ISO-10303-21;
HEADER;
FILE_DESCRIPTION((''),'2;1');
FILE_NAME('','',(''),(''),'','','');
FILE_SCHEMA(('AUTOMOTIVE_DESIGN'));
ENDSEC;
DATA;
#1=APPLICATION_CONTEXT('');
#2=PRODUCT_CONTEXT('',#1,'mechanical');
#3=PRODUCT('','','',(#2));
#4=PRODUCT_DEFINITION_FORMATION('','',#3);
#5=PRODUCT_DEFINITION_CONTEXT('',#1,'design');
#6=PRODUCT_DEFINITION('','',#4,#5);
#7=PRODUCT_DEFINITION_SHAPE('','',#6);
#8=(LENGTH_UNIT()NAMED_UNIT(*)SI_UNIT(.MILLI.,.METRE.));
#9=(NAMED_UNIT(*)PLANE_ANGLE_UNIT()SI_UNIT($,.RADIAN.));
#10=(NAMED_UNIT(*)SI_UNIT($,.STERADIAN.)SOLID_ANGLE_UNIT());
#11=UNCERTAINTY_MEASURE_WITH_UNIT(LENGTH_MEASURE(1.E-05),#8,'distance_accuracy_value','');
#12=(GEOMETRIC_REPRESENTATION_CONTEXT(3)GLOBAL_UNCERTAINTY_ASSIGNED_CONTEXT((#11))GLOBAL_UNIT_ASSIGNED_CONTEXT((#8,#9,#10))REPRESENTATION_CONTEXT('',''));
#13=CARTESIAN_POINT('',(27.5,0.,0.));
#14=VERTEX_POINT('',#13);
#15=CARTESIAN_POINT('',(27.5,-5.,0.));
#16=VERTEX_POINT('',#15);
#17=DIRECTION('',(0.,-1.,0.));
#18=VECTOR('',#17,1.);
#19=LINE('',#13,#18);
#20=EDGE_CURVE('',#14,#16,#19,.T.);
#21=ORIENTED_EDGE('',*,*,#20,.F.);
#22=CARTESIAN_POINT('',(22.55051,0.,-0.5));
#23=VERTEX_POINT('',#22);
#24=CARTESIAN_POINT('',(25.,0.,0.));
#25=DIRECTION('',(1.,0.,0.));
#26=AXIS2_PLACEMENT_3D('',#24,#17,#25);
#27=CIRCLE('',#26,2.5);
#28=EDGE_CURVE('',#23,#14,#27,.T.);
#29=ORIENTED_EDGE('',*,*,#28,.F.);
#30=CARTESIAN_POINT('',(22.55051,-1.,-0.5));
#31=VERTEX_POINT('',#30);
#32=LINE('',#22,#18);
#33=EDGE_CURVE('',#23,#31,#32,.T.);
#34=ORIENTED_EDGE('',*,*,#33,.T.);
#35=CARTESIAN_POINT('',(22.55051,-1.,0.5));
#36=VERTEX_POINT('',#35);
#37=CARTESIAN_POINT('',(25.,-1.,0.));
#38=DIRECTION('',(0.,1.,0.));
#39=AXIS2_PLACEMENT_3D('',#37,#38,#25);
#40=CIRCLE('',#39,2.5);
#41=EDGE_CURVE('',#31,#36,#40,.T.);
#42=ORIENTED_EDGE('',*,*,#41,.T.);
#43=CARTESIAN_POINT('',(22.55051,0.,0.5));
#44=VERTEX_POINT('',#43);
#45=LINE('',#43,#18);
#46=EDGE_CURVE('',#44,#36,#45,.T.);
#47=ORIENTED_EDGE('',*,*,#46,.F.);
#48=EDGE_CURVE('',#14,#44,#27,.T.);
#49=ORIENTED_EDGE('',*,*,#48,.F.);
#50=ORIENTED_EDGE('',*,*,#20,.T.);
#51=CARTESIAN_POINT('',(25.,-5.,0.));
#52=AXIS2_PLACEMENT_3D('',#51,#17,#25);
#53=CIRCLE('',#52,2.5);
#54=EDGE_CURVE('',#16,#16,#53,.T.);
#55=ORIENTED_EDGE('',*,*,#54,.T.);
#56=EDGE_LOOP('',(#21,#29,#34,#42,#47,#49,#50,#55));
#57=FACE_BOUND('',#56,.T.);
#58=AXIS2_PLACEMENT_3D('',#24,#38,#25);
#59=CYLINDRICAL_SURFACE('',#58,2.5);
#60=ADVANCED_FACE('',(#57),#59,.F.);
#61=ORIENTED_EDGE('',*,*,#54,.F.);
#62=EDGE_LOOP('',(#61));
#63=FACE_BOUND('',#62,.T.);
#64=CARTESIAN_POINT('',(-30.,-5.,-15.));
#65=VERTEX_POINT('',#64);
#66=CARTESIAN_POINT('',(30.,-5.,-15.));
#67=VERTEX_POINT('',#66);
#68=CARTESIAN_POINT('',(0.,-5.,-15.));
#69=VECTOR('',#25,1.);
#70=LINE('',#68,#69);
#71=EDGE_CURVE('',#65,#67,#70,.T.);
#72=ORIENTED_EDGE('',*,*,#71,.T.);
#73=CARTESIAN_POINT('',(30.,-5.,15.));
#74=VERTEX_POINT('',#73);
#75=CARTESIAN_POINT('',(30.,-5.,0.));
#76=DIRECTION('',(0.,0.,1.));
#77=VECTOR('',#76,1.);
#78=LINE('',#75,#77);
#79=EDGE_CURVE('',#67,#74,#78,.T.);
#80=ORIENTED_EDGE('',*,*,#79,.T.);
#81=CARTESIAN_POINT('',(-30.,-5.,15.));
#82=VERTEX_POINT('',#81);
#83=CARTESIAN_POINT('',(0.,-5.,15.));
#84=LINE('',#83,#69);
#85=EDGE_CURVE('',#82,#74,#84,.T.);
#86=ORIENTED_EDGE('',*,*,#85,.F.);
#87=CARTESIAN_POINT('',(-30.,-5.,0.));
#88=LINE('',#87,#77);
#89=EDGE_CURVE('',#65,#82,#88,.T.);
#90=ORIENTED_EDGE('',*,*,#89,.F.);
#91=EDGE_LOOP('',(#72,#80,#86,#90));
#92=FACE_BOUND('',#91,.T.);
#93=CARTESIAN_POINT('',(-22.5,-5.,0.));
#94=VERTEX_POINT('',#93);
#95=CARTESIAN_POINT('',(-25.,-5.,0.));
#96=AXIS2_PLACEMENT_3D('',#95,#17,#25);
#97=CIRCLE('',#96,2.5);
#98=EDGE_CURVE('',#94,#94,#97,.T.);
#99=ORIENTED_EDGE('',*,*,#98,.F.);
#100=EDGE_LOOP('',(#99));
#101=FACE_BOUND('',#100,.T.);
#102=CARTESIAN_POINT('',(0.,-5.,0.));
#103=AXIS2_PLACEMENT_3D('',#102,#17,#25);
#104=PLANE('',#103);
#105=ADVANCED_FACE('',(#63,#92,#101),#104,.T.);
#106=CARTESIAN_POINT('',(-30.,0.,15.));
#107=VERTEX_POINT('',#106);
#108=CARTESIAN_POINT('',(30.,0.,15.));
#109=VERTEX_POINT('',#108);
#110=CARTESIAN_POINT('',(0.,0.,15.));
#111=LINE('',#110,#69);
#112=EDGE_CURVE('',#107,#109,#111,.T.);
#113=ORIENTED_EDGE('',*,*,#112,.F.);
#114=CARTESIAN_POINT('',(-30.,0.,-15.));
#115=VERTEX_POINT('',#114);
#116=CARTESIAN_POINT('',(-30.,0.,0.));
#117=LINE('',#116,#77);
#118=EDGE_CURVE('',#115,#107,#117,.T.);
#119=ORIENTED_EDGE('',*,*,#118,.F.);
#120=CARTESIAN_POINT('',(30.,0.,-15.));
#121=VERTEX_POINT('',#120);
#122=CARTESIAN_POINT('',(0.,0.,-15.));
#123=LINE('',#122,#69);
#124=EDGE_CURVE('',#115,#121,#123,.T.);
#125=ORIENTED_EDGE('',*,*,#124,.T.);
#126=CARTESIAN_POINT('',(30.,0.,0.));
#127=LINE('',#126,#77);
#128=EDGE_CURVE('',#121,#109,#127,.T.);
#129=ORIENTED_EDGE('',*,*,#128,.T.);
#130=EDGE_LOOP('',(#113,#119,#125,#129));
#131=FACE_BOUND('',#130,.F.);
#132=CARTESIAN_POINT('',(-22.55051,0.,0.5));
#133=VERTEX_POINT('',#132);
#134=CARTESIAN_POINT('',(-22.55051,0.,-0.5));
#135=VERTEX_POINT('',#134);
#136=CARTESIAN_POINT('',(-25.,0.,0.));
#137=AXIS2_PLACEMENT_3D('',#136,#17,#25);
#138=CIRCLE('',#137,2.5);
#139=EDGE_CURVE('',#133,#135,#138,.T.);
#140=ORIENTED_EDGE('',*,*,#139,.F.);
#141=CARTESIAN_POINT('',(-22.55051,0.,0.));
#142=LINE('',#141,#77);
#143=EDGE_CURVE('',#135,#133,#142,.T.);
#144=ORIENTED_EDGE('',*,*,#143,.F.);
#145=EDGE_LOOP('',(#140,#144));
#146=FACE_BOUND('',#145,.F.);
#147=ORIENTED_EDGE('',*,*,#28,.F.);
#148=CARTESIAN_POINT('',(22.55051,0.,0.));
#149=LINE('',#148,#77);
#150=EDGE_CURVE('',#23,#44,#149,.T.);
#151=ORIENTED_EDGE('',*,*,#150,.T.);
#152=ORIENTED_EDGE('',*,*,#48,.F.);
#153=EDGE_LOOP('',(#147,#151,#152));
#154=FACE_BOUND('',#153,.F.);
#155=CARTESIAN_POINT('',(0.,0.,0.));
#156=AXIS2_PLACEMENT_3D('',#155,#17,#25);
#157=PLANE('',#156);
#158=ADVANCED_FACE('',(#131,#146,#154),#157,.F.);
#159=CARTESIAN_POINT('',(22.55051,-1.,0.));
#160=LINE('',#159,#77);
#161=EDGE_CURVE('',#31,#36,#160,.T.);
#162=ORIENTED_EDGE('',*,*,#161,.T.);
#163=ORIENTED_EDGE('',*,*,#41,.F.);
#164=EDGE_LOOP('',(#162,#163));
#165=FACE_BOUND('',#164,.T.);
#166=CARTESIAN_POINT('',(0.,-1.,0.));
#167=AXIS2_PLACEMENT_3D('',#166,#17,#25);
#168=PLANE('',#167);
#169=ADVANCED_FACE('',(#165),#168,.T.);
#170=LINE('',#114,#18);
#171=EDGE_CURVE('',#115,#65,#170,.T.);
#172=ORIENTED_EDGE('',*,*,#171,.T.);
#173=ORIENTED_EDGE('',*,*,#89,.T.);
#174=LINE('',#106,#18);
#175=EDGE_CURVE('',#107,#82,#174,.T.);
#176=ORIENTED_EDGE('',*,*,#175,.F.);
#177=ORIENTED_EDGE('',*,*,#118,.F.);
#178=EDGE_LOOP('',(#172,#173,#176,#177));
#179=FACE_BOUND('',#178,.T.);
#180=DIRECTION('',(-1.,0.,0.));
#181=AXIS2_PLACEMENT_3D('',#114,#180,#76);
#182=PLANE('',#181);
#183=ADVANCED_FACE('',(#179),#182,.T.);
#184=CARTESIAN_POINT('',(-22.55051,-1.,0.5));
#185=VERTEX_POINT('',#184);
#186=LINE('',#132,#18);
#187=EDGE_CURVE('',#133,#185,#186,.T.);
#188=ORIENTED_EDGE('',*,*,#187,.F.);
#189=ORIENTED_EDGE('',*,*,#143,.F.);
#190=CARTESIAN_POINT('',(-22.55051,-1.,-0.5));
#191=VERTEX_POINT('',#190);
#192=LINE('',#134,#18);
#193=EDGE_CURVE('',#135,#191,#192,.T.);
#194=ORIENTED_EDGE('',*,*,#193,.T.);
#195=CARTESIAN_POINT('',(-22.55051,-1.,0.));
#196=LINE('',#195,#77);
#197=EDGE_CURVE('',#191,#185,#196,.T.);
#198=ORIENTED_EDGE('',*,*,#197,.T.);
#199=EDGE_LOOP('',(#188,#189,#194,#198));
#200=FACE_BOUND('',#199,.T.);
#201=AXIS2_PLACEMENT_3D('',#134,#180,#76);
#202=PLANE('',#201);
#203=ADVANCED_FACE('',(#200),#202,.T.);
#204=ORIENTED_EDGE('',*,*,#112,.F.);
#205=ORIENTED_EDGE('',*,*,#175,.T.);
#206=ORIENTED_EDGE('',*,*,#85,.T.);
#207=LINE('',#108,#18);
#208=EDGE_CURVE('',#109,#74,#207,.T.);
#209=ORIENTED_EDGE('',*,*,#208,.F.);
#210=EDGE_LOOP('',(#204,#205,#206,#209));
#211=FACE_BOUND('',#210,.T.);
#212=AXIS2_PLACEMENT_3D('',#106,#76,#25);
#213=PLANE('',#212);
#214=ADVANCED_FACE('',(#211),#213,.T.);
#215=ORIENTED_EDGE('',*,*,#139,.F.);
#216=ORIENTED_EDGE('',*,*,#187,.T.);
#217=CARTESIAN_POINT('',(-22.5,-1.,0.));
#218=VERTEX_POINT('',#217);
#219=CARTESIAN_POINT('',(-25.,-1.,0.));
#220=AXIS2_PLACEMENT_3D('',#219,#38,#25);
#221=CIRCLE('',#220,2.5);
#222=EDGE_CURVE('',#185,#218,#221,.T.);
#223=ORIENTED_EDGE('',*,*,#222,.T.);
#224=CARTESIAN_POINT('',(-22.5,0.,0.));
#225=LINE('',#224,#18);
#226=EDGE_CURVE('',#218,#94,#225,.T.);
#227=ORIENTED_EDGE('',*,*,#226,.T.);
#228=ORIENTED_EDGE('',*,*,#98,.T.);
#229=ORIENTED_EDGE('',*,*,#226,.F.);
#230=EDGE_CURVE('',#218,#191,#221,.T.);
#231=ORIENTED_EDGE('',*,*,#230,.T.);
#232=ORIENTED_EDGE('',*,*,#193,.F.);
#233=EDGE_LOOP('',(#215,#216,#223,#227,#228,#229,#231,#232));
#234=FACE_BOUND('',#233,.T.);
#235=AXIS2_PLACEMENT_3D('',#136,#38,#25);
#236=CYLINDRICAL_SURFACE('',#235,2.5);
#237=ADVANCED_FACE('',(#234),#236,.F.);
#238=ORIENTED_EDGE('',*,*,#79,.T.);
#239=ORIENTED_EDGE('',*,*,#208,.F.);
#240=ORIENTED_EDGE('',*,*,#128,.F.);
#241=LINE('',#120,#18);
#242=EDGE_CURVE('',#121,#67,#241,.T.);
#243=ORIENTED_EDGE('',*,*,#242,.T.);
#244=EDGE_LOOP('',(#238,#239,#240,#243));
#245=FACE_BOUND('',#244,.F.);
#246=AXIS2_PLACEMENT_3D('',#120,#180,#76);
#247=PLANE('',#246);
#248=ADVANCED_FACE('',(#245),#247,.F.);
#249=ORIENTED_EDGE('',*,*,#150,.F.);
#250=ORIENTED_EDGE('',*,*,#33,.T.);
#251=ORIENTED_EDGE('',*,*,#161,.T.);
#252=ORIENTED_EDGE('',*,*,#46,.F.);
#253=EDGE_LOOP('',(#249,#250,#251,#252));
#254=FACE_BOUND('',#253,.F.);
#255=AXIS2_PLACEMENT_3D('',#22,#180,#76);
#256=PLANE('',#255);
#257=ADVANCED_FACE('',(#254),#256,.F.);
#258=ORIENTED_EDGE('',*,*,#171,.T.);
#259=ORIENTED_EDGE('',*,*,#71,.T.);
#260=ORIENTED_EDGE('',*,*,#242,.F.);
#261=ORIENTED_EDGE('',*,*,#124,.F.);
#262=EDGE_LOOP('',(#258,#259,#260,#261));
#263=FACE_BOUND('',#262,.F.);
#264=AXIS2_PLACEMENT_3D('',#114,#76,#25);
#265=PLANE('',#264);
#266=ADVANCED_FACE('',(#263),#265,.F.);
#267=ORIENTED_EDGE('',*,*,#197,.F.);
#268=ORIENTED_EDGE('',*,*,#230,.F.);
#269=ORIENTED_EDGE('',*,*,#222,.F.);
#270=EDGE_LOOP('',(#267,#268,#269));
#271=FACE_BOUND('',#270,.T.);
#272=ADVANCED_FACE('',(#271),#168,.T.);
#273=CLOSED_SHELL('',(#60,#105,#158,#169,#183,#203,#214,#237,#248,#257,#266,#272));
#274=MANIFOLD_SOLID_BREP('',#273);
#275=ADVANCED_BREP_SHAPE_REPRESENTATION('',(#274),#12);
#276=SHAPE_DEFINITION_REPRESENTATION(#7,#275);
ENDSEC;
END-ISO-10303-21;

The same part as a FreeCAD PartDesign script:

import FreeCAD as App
import Part
import Sketcher
from FreeCAD import Vector
Q = App.Units.Quantity

doc = App.newDocument("Part")
body = doc.addObject("PartDesign::Body", "Body")

# Sketch on XZ plane
sketch1 = body.newObject("Sketcher::SketchObject", "Sketch")
sketch1.AttachmentSupport = (doc.getObject("XZ_Plane"), [""])
sketch1.MapMode = "FlatFace"
sketch1.addGeometry(Part.LineSegment(Vector(-30, 15, 0), Vector(-30, -15, 0)), False)
sketch1.addGeometry(Part.LineSegment(Vector(-30, -15, 0), Vector(30, -15, 0)), False)
sketch1.addGeometry(Part.LineSegment(Vector(30, -15, 0), Vector(30, 15, 0)), False)
sketch1.addGeometry(Part.LineSegment(Vector(30, 15, 0), Vector(-30, 15, 0)), False)
sketch1.addGeometry(Part.Circle(Vector(-25, 0, 0), Vector(0, 0, 1), 2.5), False)
sketch1.addGeometry(Part.Circle(Vector(25, 0, 0), Vector(0, 0, 1), 2.5), False)
sketch1.addConstraint(Sketcher.Constraint("Coincident", 0, 2, 1, 1))
sketch1.addConstraint(Sketcher.Constraint("Coincident", 1, 2, 2, 1))
sketch1.addConstraint(Sketcher.Constraint("Coincident", 2, 2, 3, 1))
sketch1.addConstraint(Sketcher.Constraint("Coincident", 3, 2, 0, 1))
sketch1.addConstraint(Sketcher.Constraint("Vertical", 0))
sketch1.addConstraint(Sketcher.Constraint("Horizontal", 1))
sketch1.addConstraint(Sketcher.Constraint("Vertical", 2))
sketch1.addConstraint(Sketcher.Constraint("Horizontal", 3))
sketch1.addConstraint(Sketcher.Constraint("Equal", 4, 5))
sketch1.addConstraint(Sketcher.Constraint("Symmetric", 4, 3, 5, 3, -1, 1))
sketch1.addConstraint(Sketcher.Constraint("Symmetric", 0, 2, 2, 2, -1, 1))
sketch1.addConstraint(Sketcher.Constraint("PointOnObject", 4, 3, -1))
sketch1.addConstraint(Sketcher.Constraint("Diameter", 4, Q("5 mm")))
sketch1.addConstraint(Sketcher.Constraint("DistanceX", 1, 1, 1, 2, Q("60 mm")))
sketch1.addConstraint(Sketcher.Constraint("DistanceY", 0, 2, 0, 1, Q("30 mm")))
sketch1.addConstraint(Sketcher.Constraint("DistanceX", 4, 3, -1, 1, Q("25 mm")))
pad1 = body.newObject("PartDesign::Pad", "Pad")
pad1.Profile = sketch1
pad1.Length = 5

# Sketch on XZ plane
sketch2 = body.newObject("Sketcher::SketchObject", "Sketch001")
sketch2.AttachmentSupport = (doc.getObject("XZ_Plane"), [""])
sketch2.MapMode = "FlatFace"
sketch2.addGeometry(Part.LineSegment(Vector(-22.6, 0.5, 0), Vector(-22.6, -0.5, 0)), False)
sketch2.addGeometry(Part.LineSegment(Vector(-22.6, -0.5, 0), Vector(22.6, -0.5, 0)), False)
sketch2.addGeometry(Part.LineSegment(Vector(22.6, -0.5, 0), Vector(22.6, 0.5, 0)), False)
sketch2.addGeometry(Part.LineSegment(Vector(22.6, 0.5, 0), Vector(-22.6, 0.5, 0)), False)
sketch2.addConstraint(Sketcher.Constraint("Coincident", 0, 2, 1, 1))
sketch2.addConstraint(Sketcher.Constraint("Coincident", 1, 2, 2, 1))
sketch2.addConstraint(Sketcher.Constraint("Coincident", 2, 2, 3, 1))
sketch2.addConstraint(Sketcher.Constraint("Coincident", 3, 2, 0, 1))
sketch2.addConstraint(Sketcher.Constraint("Vertical", 0))
sketch2.addConstraint(Sketcher.Constraint("Horizontal", 1))
sketch2.addConstraint(Sketcher.Constraint("Vertical", 2))
sketch2.addConstraint(Sketcher.Constraint("Horizontal", 3))
sketch2.addConstraint(Sketcher.Constraint("Symmetric", 0, 2, 2, 2, -1, 1))
sketch2.addConstraint(Sketcher.Constraint("DistanceY", 0, 2, 0, 1, Q("1 mm")))
sketch2.addConstraint(Sketcher.Constraint("DistanceX", 1, 1, 1, 2, Q("45.10102 mm")))
pad2 = body.newObject("PartDesign::Pad", "Pad001")
pad2.Profile = sketch2
pad2.Length = 1

doc.recompute()
